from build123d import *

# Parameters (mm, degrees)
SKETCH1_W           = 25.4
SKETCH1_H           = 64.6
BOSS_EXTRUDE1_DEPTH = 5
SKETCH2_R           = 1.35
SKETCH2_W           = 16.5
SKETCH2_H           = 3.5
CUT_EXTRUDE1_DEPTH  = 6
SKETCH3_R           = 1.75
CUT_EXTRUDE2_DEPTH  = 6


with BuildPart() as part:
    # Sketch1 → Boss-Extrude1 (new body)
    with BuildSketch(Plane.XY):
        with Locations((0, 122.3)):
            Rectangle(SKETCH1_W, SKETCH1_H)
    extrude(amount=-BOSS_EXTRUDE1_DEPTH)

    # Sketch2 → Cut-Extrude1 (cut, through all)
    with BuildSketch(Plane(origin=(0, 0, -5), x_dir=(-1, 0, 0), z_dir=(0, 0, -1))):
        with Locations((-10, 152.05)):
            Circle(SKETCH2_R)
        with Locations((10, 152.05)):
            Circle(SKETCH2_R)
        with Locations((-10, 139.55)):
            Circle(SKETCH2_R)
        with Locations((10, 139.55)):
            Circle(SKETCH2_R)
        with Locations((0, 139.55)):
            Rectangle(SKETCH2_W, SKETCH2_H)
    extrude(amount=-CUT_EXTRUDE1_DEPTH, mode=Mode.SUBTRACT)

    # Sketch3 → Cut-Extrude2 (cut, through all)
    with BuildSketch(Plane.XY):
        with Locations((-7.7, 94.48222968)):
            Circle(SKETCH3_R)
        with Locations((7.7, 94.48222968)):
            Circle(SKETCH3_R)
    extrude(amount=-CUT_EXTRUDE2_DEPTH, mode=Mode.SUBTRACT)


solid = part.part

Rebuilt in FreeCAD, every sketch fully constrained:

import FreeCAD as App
import Part
import Sketcher
from FreeCAD import Vector
Q = App.Units.Quantity


def add_polygon(sketch, points):
    """Adds a closed chain of lines whose ends are joined by coincident constraints."""
    first, n = sketch.GeometryCount, len(points)
    for a, b in zip(points, points[1:] + points[:1]):
        sketch.addGeometry(Part.LineSegment(App.Vector(*a, 0), App.Vector(*b, 0)), False)
    for i in range(n):
        sketch.addConstraint(Sketcher.Constraint("Coincident", first + i, 2, first + (i + 1) % n, 1))

doc = App.newDocument("Part")
params = doc.addObject("Spreadsheet::Sheet", "Params")
for row, (alias, value) in enumerate([
    ("sketch1_width", "25.4 mm"),
    ("sketch1_height", "64.6 mm"),
    ("pad1_length", "5 mm"),
    ("sketch2_diameter", "2.7 mm"),
    ("sketch2_width", "16.5 mm"),
    ("sketch2_height", "3.5 mm"),
    ("sketch3_diameter", "3.5 mm"),
], start=1):
    params.set(f"A{row}", alias)
    params.set(f"B{row}", "=" + value)
    params.setAlias(f"B{row}", alias)

body = doc.addObject("PartDesign::Body", "Body")

# Sketch on XY plane
sketch1 = body.newObject("Sketcher::SketchObject", "Sketch")
sketch1.AttachmentSupport = (doc.getObject("XY_Plane"), [""])
sketch1.MapMode = "FlatFace"
add_polygon(sketch1, [(-13, 155), (-13, 90), (13, 90), (13, 155)])  # lines 0-3
sketch1.addConstraint(Sketcher.Constraint("Vertical", 0))
sketch1.addConstraint(Sketcher.Constraint("Horizontal", 1))
sketch1.addConstraint(Sketcher.Constraint("Vertical", 2))
sketch1.addConstraint(Sketcher.Constraint("Horizontal", 3))
sketch1.addConstraint(Sketcher.Constraint("DistanceX", 1, 1, 1, 2, Q("25.4 mm")))
sketch1.addConstraint(Sketcher.Constraint("DistanceY", 0, 2, 0, 1, Q("64.6 mm")))
sketch1.addConstraint(Sketcher.Constraint("DistanceY", -1, 1, 0, 2, Q("90 mm")))
sketch1.addConstraint(Sketcher.Constraint("DistanceX", 0, 2, -1, 1, Q("12.7 mm")))
sketch1.setExpression("Constraints[8]", "Params.sketch1_width")
sketch1.setExpression("Constraints[9]", "Params.sketch1_height")
pad1 = body.newObject("PartDesign::Pad", "Pad")
pad1.Profile = sketch1
pad1.setExpression("Length", "Params.pad1_length")
pad1.Reversed = True

# Sketch on XY plane
sketch2 = body.newObject("Sketcher::SketchObject", "Sketch001")
sketch2.AttachmentSupport = (doc.getObject("XY_Plane"), [""])
sketch2.MapMode = "FlatFace"
sketch2.AttachmentOffset = App.Placement(Vector(0, 0, -5), App.Rotation())
sketch2.addGeometry(Part.Circle(Vector(10, 152.1, 0), Vector(0, 0, 1), 1.4), False)  # 0
sketch2.addGeometry(Part.Circle(Vector(-10, 152.1, 0), Vector(0, 0, 1), 1.4), False)  # 1
sketch2.addGeometry(Part.Circle(Vector(10, 139.6, 0), Vector(0, 0, 1), 1.4), False)  # 2
sketch2.addGeometry(Part.Circle(Vector(-10, 139.6, 0), Vector(0, 0, 1), 1.4), False)  # 3
add_polygon(sketch2, [(8.2, 141.3), (8.2, 137.8), (-8.2, 137.8), (-8.2, 141.3)])  # lines 4-7
sketch2.addConstraint(Sketcher.Constraint("Vertical", 4))
sketch2.addConstraint(Sketcher.Constraint("Horizontal", 5))
sketch2.addConstraint(Sketcher.Constraint("Vertical", 6))
sketch2.addConstraint(Sketcher.Constraint("Horizontal", 7))
sketch2.addConstraint(Sketcher.Constraint("Equal", 0, 1))
sketch2.addConstraint(Sketcher.Constraint("Equal", 1, 2))
sketch2.addConstraint(Sketcher.Constraint("Equal", 2, 3))
sketch2.addConstraint(Sketcher.Constraint("Symmetric", 0, 3, 1, 3, -2))
sketch2.addConstraint(Sketcher.Constraint("Symmetric", 2, 3, 3, 3, -2))
sketch2.addConstraint(Sketcher.Constraint("Vertical", 0, 3, 2, 3))
sketch2.addConstraint(Sketcher.Constraint("Diameter", 0, Q("2.7 mm")))
sketch2.addConstraint(Sketcher.Constraint("DistanceX", 5, 2, 5, 1, Q("16.5 mm")))
sketch2.addConstraint(Sketcher.Constraint("DistanceY", 4, 2, 4, 1, Q("3.5 mm")))
sketch2.addConstraint(Sketcher.Constraint("DistanceX", -1, 1, 0, 3, Q("10 mm")))
sketch2.addConstraint(Sketcher.Constraint("DistanceY", -1, 1, 4, 2, Q("137.8 mm")))
sketch2.addConstraint(Sketcher.Constraint("DistanceY", 2, 3, 0, 3, Q("12.5 mm")))
sketch2.addConstraint(Sketcher.Constraint("DistanceY", -1, 1, 0, 3, Q("152.05 mm")))
sketch2.addConstraint(Sketcher.Constraint("DistanceX", -1, 1, 4, 2, Q("8.25 mm")))
sketch2.setExpression("Constraints[14]", "Params.sketch2_diameter")
sketch2.setExpression("Constraints[15]", "Params.sketch2_width")
sketch2.setExpression("Constraints[16]", "Params.sketch2_height")
pocket1 = body.newObject("PartDesign::Pocket", "Pocket")
pocket1.Profile = sketch2
pocket1.Type = "ThroughAll"
pocket1.Reversed = True

# Sketch on XY plane
sketch3 = body.newObject("Sketcher::SketchObject", "Sketch002")
sketch3.AttachmentSupport = (doc.getObject("XY_Plane"), [""])
sketch3.MapMode = "FlatFace"
sketch3.addGeometry(Part.Circle(Vector(-7.7, 94.5, 0), Vector(0, 0, 1), 1.8), False)
sketch3.addGeometry(Part.Circle(Vector(7.7, 94.5, 0), Vector(0, 0, 1), 1.8), False)
sketch3.addConstraint(Sketcher.Constraint("Equal", 0, 1))
sketch3.addConstraint(Sketcher.Constraint("Symmetric", 0, 3, 1, 3, -2))
sketch3.addConstraint(Sketcher.Constraint("Diameter", 0, Q("3.5 mm")))
sketch3.addConstraint(Sketcher.Constraint("DistanceX", 0, 3, -1, 1, Q("7.7 mm")))
sketch3.addConstraint(Sketcher.Constraint("DistanceY", -1, 1, 0, 3, Q("94.48223 mm")))
sketch3.setExpression("Constraints[2]", "Params.sketch3_diameter")
pocket2 = body.newObject("PartDesign::Pocket", "Pocket001")
pocket2.Profile = sketch3
pocket2.Type = "ThroughAll"

doc.recompute()
